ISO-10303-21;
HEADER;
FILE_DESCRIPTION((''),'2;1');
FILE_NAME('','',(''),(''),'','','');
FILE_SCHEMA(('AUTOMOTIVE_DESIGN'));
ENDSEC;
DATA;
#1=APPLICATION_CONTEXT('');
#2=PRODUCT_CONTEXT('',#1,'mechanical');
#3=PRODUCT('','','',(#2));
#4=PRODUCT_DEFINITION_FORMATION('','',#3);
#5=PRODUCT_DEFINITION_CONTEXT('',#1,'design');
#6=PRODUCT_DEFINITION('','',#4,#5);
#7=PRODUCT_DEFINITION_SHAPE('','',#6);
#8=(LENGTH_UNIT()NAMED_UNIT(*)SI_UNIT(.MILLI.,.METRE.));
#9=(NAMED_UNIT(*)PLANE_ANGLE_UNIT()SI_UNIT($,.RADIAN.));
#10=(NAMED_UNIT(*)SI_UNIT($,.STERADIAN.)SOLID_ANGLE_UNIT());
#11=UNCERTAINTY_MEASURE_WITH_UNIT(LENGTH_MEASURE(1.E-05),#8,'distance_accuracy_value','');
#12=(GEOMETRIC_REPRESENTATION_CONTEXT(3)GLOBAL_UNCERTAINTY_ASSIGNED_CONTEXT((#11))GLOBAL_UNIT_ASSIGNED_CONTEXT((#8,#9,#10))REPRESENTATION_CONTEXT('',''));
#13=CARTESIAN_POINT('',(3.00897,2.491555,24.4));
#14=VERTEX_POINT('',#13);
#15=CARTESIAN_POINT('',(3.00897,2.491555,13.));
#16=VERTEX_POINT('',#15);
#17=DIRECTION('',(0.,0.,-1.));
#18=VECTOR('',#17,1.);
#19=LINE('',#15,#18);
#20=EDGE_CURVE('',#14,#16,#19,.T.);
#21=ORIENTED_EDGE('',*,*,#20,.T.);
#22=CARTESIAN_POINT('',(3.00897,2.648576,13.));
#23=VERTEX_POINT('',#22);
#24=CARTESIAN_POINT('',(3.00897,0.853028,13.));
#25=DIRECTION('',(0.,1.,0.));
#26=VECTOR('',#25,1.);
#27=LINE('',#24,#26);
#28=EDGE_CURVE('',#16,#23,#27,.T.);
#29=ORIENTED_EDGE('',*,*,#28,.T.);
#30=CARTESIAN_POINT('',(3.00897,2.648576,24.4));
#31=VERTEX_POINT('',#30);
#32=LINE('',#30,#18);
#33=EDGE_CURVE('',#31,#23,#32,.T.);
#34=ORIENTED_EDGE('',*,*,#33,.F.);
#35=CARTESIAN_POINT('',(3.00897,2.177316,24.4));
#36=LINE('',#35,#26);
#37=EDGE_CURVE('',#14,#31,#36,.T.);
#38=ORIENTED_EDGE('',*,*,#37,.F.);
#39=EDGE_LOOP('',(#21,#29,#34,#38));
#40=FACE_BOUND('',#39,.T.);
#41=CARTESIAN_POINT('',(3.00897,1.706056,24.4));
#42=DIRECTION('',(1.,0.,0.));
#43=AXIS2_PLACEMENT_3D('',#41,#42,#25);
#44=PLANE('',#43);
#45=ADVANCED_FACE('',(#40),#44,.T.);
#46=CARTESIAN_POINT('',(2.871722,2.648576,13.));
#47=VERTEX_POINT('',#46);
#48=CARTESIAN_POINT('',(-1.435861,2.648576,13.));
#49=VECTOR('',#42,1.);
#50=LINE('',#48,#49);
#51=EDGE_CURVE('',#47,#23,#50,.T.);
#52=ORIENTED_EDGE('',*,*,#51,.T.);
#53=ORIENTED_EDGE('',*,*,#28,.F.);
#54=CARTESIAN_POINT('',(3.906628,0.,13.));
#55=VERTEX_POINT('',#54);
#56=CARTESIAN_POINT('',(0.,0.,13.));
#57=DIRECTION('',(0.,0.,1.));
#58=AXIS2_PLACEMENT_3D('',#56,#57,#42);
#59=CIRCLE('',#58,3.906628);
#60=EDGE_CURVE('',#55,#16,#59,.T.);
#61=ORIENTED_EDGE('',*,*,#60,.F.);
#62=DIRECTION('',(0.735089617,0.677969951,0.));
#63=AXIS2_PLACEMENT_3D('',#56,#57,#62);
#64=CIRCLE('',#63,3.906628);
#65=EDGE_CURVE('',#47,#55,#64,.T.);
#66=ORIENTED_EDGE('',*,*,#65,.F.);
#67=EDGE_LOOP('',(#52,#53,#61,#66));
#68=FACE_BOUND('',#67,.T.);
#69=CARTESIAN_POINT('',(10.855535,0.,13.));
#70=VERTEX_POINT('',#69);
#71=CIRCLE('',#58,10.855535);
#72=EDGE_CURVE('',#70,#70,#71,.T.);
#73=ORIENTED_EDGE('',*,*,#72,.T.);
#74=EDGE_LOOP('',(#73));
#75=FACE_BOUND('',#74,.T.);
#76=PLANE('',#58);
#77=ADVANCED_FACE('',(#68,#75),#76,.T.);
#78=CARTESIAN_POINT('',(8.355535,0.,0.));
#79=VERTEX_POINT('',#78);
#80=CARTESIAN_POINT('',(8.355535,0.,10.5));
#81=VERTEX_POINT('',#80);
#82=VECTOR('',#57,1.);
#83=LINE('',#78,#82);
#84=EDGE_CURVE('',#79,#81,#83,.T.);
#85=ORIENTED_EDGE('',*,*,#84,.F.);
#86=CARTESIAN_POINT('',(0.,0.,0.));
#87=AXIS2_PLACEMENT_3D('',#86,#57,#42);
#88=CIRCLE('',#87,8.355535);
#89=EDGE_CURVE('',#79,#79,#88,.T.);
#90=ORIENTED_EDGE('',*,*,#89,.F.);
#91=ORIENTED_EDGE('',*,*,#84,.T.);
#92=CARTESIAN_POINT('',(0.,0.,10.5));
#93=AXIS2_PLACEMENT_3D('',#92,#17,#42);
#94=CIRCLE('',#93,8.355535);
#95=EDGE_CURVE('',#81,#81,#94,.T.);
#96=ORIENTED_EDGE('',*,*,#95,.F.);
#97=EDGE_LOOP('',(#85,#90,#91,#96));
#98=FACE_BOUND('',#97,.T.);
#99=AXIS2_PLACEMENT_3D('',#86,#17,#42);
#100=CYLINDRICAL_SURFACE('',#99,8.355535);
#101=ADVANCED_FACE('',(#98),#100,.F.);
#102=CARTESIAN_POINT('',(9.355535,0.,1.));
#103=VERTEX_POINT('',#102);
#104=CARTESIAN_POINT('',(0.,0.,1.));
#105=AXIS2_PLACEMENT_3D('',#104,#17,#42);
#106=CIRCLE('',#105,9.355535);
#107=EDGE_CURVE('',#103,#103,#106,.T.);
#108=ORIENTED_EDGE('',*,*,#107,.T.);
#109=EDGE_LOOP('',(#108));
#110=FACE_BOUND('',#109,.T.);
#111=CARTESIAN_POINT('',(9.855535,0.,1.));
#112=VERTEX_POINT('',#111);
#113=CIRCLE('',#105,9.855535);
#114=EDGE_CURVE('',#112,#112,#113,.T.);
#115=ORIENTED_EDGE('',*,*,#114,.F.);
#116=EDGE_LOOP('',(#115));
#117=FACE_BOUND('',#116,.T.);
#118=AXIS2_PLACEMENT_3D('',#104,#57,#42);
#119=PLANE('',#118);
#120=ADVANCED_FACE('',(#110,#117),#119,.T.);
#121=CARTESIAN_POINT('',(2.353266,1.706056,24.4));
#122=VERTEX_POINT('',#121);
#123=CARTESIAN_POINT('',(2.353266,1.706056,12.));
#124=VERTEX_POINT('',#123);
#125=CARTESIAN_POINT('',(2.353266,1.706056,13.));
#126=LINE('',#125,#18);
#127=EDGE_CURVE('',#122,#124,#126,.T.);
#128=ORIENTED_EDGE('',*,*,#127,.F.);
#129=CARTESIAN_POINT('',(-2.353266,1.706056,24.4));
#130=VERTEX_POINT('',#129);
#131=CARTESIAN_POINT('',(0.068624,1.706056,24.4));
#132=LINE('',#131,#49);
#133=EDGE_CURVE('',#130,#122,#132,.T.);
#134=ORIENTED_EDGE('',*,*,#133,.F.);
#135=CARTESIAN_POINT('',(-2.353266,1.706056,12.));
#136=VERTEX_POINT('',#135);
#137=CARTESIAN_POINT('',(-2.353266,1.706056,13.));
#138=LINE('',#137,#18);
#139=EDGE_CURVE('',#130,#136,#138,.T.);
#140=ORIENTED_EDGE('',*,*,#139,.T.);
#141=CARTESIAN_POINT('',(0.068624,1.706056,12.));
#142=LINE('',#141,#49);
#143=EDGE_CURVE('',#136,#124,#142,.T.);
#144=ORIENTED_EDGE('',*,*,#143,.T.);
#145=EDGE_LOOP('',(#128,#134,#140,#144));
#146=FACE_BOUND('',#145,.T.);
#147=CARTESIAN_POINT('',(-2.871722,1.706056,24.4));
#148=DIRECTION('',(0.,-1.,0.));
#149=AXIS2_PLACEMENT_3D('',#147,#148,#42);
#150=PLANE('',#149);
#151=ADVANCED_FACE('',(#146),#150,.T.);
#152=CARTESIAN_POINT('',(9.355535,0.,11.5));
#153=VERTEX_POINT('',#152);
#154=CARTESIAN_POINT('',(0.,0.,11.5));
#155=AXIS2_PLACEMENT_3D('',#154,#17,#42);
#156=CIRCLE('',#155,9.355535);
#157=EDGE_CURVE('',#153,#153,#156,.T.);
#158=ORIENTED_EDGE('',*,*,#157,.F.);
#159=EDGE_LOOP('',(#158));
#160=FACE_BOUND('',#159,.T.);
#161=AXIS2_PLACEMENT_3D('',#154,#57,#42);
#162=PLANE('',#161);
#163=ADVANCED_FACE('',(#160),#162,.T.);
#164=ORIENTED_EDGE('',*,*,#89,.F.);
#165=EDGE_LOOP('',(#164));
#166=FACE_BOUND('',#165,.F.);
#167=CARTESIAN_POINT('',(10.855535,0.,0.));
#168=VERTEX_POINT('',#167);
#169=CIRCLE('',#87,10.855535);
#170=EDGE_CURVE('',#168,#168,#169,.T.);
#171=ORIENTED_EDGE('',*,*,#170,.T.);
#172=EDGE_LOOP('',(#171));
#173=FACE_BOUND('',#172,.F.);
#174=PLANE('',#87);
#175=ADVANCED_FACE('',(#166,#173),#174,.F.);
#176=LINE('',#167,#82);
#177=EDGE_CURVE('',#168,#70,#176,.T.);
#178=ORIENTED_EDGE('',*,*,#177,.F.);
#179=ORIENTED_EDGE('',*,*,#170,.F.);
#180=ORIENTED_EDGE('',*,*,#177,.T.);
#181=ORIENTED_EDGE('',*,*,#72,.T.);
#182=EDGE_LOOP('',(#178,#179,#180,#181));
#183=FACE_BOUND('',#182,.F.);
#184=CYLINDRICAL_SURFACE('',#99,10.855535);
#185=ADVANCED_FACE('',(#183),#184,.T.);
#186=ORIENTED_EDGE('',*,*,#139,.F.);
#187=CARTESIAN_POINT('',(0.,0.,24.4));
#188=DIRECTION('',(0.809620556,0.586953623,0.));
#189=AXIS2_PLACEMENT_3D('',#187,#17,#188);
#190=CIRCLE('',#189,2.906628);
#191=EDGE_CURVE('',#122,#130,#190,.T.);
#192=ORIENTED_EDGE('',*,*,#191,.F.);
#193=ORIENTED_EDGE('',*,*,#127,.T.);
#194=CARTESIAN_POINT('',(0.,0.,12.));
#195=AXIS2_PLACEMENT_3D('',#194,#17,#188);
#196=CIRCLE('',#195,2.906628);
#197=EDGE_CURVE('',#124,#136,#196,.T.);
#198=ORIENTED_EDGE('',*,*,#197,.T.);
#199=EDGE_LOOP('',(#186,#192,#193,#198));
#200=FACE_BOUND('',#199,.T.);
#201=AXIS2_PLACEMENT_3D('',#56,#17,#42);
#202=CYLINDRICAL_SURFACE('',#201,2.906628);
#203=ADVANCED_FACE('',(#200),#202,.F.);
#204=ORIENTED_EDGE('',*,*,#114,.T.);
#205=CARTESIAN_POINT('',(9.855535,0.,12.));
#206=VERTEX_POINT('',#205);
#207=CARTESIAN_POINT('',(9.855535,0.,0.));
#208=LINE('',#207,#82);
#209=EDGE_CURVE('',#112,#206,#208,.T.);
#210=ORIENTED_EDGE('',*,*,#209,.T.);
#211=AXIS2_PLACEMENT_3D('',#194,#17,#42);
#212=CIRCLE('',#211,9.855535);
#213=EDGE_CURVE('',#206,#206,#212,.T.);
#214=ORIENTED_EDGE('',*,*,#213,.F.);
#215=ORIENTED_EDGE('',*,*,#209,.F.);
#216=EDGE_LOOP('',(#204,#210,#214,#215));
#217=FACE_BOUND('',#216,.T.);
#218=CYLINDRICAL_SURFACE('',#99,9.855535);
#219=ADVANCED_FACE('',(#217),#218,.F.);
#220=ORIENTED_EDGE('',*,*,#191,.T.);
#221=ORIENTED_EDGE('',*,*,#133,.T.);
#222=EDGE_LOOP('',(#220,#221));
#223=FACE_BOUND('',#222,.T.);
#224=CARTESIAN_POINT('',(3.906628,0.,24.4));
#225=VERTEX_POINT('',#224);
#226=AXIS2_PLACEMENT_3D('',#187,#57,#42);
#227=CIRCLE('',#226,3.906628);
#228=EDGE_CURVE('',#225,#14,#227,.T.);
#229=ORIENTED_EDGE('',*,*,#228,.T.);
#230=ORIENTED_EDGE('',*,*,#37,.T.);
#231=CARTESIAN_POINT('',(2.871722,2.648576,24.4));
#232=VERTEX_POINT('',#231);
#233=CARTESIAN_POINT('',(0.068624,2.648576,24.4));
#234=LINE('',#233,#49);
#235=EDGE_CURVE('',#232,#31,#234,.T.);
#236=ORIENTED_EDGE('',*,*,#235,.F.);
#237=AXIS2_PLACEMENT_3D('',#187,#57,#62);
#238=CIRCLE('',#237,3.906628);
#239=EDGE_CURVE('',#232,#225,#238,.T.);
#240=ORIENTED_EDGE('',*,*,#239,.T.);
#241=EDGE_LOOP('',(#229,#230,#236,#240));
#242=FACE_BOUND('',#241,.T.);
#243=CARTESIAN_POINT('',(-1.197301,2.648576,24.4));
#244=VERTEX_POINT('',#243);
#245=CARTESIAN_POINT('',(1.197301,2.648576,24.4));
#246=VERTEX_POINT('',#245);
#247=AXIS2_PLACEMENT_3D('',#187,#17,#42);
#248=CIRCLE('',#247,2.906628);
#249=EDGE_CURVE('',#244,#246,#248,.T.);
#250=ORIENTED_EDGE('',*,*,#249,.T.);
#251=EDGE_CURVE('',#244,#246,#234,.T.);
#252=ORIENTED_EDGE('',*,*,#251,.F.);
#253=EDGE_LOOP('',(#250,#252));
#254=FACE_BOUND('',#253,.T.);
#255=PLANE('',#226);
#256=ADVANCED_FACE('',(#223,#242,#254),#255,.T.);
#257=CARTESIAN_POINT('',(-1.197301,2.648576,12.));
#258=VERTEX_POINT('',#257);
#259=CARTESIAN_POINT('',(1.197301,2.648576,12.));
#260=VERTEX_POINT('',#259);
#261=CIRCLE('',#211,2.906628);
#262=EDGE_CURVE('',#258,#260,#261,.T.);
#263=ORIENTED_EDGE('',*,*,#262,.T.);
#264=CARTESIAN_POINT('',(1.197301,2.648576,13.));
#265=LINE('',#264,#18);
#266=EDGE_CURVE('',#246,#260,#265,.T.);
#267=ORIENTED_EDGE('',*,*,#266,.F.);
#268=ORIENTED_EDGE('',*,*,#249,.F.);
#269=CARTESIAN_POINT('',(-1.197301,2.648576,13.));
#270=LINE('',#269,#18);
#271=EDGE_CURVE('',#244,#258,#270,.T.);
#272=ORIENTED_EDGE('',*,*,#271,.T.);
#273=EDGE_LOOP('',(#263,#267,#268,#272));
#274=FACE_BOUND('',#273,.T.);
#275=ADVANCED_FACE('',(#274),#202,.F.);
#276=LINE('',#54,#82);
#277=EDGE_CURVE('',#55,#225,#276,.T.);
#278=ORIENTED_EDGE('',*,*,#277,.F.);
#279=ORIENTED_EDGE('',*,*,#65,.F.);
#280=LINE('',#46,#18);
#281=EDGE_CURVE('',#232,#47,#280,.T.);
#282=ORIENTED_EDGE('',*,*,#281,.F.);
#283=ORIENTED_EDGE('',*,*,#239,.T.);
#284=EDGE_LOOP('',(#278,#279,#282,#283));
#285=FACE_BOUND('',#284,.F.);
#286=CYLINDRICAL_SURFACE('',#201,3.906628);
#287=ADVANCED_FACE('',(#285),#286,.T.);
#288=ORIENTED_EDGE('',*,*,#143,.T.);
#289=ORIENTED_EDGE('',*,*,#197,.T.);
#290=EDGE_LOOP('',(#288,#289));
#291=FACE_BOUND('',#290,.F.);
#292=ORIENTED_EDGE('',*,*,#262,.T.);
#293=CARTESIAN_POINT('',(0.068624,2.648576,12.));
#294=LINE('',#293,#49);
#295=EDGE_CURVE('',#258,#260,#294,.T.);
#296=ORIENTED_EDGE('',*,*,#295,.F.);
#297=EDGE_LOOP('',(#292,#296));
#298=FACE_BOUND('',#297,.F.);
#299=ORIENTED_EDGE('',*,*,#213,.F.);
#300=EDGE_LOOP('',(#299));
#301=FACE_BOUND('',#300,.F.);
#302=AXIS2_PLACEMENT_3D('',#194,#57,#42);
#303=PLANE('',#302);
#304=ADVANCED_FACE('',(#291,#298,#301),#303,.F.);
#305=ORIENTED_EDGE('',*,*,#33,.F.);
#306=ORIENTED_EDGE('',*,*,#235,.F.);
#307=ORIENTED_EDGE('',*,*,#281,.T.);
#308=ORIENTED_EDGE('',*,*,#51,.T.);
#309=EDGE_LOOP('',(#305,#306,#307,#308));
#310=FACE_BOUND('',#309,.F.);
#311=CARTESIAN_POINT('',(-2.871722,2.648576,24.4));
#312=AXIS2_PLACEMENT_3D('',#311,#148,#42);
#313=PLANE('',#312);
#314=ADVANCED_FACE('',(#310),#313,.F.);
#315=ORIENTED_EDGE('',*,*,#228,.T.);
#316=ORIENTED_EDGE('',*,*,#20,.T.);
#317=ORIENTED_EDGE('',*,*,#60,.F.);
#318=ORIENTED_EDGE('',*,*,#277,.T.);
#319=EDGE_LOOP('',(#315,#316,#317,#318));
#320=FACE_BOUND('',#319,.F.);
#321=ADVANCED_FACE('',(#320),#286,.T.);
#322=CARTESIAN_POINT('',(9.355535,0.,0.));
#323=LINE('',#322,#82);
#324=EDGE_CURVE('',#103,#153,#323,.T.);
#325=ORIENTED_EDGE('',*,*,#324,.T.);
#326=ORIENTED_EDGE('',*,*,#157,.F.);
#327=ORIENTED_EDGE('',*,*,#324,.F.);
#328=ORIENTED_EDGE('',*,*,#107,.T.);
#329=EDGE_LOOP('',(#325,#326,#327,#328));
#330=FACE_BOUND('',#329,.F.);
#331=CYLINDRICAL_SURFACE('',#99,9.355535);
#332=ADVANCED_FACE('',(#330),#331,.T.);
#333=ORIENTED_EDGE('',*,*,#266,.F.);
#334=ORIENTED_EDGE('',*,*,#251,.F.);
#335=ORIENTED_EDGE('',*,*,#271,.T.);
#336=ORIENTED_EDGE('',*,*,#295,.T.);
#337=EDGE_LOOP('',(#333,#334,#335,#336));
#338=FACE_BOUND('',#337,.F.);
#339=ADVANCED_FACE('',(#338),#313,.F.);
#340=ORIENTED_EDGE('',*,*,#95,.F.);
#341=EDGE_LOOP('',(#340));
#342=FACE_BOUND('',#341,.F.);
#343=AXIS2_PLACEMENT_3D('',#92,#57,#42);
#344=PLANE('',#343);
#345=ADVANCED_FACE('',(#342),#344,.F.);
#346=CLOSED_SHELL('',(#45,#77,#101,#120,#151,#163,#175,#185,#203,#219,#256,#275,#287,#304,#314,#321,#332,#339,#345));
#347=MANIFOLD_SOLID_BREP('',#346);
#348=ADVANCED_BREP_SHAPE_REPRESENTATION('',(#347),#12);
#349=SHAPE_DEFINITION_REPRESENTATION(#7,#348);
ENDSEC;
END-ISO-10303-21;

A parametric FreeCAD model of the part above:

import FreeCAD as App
import Part
import Sketcher


def faces_at(feature, points):
    """Names of the faces that lie closest to the given points."""
    faces = feature.Shape.Faces
    near = lambda p: min(range(len(faces)), key=lambda i: faces[i].distToShape(Part.Vertex(*p))[0])
    return sorted({f"Face{near(p) + 1}" for p in points})


def add_polygon(sketch, points):
    """Adds a closed chain of lines whose ends are joined by coincident constraints."""
    first, n = sketch.GeometryCount, len(points)
    for a, b in zip(points, points[1:] + points[:1]):
        sketch.addGeometry(Part.LineSegment(App.Vector(*a, 0), App.Vector(*b, 0)), False)
    for i in range(n):
        sketch.addConstraint(Sketcher.Constraint("Coincident", first + i, 2, first + (i + 1) % n, 1))

doc = App.newDocument("Part")
body = doc.addObject("PartDesign::Body", "Body")

# Sketch on XY plane
sketch1 = body.newObject("Sketcher::SketchObject", "Sketch")
sketch1.AttachmentSupport = (doc.getObject("XY_Plane"), [""])
sketch1.MapMode = "FlatFace"
sketch1.addGeometry(Part.Circle(App.Vector(0, 0, 0), App.Vector(0, 0, 1), 10.855535), False)
sketch1.addConstraint([
    Sketcher.Constraint("Coincident", 0, 3, -1, 1),
    Sketcher.Constraint("Diameter", 0, 21.711071),
])
pad1 = body.newObject("PartDesign::Pad", "Pad")
pad1.Profile = sketch1
pad1.Length = 13
doc.recompute()

thickness = body.newObject("PartDesign::Thickness", "Thickness")
thickness.Base = (pad1, faces_at(pad1, [(0, 0, 0)]))
thickness.Value = 2.5
thickness.Reversed = True
thickness.Join = "Arc"

# Sketch on XY plane
sketch2 = body.newObject("Sketcher::SketchObject", "Sketch001")
sketch2.AttachmentSupport = (doc.getObject("XY_Plane"), [""])
sketch2.MapMode = "FlatFace"
sketch2.AttachmentOffset = App.Placement(App.Vector(0, 0, 13), App.Rotation())
sketch2.addGeometry(Part.Circle(App.Vector(0, 0, 0), App.Vector(0, 0, 1), 3.906628), False)
sketch2.addConstraint([
    Sketcher.Constraint("Coincident", 0, 3, -1, 1),
    Sketcher.Constraint("Diameter", 0, 7.813256),
])
pad2 = body.newObject("PartDesign::Pad", "Pad001")
pad2.Profile = sketch2
pad2.Length = 11.4
doc.recompute()

thickness2 = body.newObject("PartDesign::Thickness", "Thickness001")
thickness2.Base = (pad2, faces_at(pad2, [(0, 0, 24.4)]))
thickness2.Value = 1
thickness2.Reversed = True
thickness2.Join = "Intersection"

# Sketch on XY plane
sketch3 = body.newObject("Sketcher::SketchObject", "Sketch002")
sketch3.AttachmentSupport = (doc.getObject("XY_Plane"), [""])
sketch3.MapMode = "FlatFace"
sketch3.AttachmentOffset = App.Placement(App.Vector(0, 0, 24.4), App.Rotation())
add_polygon(sketch3, [(-2.871722, 2.648576), (-2.871722, 1.706056), (3.00897, 1.706056), (3.00897, 2.648576)])  # lines 0-3
sketch3.addConstraint([
    Sketcher.Constraint("Vertical", 0),
    Sketcher.Constraint("Horizontal", 1),
    Sketcher.Constraint("Vertical", 2),
    Sketcher.Constraint("Horizontal", 3),
    Sketcher.Constraint("DistanceX", 1, 1, 1, 2, 5.880691),
    Sketcher.Constraint("DistanceY", 0, 2, 0, 1, 0.942521),
    Sketcher.Constraint("DistanceX", 0, 2, -1, 1, 2.871722),
    Sketcher.Constraint("DistanceY", -1, 1, 0, 2, 1.706056),
])
pad3 = body.newObject("PartDesign::Pad", "Pad002")
pad3.Profile = sketch3
pad3.Length = 12.4
pad3.Reversed = True

doc.recompute()
